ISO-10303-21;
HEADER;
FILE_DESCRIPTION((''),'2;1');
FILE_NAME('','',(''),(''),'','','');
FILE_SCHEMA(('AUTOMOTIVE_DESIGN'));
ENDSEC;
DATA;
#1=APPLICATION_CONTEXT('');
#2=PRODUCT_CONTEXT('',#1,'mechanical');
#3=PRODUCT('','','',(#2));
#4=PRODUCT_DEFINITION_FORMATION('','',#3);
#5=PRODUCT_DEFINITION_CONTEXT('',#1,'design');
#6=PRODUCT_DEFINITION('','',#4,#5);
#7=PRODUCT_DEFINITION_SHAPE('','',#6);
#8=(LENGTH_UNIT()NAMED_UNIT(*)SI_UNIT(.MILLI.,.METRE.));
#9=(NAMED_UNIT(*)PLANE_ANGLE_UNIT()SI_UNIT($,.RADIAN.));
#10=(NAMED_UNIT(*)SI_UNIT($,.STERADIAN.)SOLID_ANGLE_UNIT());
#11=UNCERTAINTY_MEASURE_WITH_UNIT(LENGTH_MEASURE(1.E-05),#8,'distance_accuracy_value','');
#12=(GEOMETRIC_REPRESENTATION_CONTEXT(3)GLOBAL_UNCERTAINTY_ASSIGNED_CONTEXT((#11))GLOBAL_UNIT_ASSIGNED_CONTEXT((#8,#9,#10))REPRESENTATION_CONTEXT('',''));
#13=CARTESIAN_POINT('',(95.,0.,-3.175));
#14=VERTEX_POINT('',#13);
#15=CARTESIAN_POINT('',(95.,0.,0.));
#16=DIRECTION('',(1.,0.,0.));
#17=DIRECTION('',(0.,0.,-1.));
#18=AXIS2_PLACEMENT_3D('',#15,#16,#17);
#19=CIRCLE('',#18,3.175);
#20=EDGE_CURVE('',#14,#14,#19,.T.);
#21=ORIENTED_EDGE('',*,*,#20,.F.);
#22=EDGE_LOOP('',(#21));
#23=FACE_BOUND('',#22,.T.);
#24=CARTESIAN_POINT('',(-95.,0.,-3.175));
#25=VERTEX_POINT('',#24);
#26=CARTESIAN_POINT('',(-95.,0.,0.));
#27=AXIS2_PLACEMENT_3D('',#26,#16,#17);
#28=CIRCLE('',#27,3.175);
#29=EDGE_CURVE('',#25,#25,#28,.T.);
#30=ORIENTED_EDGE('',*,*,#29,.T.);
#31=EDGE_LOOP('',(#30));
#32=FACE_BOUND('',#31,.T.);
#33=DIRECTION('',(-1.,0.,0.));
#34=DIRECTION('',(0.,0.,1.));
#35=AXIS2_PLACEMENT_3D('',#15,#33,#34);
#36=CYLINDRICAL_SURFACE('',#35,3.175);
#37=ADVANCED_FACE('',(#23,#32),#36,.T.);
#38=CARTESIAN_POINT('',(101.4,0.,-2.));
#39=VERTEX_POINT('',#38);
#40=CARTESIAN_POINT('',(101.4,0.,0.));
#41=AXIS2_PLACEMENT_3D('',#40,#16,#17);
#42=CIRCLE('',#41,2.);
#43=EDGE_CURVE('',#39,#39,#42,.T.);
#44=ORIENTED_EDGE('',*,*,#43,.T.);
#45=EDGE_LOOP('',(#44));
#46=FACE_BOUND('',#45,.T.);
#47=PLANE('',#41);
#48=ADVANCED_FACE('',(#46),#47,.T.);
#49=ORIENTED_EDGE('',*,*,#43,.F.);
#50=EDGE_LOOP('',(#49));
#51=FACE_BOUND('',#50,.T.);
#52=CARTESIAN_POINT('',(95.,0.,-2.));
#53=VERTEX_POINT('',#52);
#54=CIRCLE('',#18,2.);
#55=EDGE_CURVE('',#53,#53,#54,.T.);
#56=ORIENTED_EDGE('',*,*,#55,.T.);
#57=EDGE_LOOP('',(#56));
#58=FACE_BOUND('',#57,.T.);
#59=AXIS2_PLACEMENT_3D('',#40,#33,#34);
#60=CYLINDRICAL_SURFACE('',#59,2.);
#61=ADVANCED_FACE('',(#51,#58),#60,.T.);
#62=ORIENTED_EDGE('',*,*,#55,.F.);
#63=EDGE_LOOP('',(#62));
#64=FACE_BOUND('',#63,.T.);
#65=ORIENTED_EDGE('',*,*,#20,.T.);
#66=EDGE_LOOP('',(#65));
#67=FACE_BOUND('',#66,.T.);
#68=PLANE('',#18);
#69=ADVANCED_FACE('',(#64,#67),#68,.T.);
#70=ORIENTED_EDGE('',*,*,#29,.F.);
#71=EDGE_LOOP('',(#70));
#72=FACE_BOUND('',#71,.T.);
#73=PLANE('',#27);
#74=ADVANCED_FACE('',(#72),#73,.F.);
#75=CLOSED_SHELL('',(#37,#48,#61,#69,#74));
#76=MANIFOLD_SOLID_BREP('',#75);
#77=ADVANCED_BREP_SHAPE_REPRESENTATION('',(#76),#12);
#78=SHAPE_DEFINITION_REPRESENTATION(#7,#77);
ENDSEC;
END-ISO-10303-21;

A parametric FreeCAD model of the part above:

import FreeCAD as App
import Part
import Sketcher
from FreeCAD import Vector
Q = App.Units.Quantity

doc = App.newDocument("Part")
body = doc.addObject("PartDesign::Body", "Body")

# Sketch on YZ plane
sketch1 = body.newObject("Sketcher::SketchObject", "Sketch")
sketch1.AttachmentSupport = (doc.getObject("YZ_Plane"), [""])
sketch1.MapMode = "FlatFace"
sketch1.addGeometry(Part.Circle(Vector(0, 0, 0), Vector(0, 0, 1), 3.2), False)
sketch1.addConstraint(Sketcher.Constraint("Coincident", 0, 3, -1, 1))
sketch1.addConstraint(Sketcher.Constraint("Diameter", 0, Q("6.35 mm")))
pad1 = body.newObject("PartDesign::Pad", "Pad")
pad1.Profile = sketch1
pad1.Length = 190
pad1.Midplane = True

# Sketch on YZ plane
sketch2 = body.newObject("Sketcher::SketchObject", "Sketch001")
sketch2.AttachmentSupport = (doc.getObject("YZ_Plane"), [""])
sketch2.MapMode = "FlatFace"
sketch2.AttachmentOffset = App.Placement(Vector(0, 0, 95), App.Rotation())
sketch2.addGeometry(Part.Circle(Vector(0, 0, 0), Vector(0, 0, 1), 2), False)
sketch2.addConstraint(Sketcher.Constraint("Coincident", 0, 3, -1, 1))
sketch2.addConstraint(Sketcher.Constraint("Diameter", 0, Q("4 mm")))
pad2 = body.newObject("PartDesign::Pad", "Pad001")
pad2.Profile = sketch2
pad2.Length = 6.4

doc.recompute()
